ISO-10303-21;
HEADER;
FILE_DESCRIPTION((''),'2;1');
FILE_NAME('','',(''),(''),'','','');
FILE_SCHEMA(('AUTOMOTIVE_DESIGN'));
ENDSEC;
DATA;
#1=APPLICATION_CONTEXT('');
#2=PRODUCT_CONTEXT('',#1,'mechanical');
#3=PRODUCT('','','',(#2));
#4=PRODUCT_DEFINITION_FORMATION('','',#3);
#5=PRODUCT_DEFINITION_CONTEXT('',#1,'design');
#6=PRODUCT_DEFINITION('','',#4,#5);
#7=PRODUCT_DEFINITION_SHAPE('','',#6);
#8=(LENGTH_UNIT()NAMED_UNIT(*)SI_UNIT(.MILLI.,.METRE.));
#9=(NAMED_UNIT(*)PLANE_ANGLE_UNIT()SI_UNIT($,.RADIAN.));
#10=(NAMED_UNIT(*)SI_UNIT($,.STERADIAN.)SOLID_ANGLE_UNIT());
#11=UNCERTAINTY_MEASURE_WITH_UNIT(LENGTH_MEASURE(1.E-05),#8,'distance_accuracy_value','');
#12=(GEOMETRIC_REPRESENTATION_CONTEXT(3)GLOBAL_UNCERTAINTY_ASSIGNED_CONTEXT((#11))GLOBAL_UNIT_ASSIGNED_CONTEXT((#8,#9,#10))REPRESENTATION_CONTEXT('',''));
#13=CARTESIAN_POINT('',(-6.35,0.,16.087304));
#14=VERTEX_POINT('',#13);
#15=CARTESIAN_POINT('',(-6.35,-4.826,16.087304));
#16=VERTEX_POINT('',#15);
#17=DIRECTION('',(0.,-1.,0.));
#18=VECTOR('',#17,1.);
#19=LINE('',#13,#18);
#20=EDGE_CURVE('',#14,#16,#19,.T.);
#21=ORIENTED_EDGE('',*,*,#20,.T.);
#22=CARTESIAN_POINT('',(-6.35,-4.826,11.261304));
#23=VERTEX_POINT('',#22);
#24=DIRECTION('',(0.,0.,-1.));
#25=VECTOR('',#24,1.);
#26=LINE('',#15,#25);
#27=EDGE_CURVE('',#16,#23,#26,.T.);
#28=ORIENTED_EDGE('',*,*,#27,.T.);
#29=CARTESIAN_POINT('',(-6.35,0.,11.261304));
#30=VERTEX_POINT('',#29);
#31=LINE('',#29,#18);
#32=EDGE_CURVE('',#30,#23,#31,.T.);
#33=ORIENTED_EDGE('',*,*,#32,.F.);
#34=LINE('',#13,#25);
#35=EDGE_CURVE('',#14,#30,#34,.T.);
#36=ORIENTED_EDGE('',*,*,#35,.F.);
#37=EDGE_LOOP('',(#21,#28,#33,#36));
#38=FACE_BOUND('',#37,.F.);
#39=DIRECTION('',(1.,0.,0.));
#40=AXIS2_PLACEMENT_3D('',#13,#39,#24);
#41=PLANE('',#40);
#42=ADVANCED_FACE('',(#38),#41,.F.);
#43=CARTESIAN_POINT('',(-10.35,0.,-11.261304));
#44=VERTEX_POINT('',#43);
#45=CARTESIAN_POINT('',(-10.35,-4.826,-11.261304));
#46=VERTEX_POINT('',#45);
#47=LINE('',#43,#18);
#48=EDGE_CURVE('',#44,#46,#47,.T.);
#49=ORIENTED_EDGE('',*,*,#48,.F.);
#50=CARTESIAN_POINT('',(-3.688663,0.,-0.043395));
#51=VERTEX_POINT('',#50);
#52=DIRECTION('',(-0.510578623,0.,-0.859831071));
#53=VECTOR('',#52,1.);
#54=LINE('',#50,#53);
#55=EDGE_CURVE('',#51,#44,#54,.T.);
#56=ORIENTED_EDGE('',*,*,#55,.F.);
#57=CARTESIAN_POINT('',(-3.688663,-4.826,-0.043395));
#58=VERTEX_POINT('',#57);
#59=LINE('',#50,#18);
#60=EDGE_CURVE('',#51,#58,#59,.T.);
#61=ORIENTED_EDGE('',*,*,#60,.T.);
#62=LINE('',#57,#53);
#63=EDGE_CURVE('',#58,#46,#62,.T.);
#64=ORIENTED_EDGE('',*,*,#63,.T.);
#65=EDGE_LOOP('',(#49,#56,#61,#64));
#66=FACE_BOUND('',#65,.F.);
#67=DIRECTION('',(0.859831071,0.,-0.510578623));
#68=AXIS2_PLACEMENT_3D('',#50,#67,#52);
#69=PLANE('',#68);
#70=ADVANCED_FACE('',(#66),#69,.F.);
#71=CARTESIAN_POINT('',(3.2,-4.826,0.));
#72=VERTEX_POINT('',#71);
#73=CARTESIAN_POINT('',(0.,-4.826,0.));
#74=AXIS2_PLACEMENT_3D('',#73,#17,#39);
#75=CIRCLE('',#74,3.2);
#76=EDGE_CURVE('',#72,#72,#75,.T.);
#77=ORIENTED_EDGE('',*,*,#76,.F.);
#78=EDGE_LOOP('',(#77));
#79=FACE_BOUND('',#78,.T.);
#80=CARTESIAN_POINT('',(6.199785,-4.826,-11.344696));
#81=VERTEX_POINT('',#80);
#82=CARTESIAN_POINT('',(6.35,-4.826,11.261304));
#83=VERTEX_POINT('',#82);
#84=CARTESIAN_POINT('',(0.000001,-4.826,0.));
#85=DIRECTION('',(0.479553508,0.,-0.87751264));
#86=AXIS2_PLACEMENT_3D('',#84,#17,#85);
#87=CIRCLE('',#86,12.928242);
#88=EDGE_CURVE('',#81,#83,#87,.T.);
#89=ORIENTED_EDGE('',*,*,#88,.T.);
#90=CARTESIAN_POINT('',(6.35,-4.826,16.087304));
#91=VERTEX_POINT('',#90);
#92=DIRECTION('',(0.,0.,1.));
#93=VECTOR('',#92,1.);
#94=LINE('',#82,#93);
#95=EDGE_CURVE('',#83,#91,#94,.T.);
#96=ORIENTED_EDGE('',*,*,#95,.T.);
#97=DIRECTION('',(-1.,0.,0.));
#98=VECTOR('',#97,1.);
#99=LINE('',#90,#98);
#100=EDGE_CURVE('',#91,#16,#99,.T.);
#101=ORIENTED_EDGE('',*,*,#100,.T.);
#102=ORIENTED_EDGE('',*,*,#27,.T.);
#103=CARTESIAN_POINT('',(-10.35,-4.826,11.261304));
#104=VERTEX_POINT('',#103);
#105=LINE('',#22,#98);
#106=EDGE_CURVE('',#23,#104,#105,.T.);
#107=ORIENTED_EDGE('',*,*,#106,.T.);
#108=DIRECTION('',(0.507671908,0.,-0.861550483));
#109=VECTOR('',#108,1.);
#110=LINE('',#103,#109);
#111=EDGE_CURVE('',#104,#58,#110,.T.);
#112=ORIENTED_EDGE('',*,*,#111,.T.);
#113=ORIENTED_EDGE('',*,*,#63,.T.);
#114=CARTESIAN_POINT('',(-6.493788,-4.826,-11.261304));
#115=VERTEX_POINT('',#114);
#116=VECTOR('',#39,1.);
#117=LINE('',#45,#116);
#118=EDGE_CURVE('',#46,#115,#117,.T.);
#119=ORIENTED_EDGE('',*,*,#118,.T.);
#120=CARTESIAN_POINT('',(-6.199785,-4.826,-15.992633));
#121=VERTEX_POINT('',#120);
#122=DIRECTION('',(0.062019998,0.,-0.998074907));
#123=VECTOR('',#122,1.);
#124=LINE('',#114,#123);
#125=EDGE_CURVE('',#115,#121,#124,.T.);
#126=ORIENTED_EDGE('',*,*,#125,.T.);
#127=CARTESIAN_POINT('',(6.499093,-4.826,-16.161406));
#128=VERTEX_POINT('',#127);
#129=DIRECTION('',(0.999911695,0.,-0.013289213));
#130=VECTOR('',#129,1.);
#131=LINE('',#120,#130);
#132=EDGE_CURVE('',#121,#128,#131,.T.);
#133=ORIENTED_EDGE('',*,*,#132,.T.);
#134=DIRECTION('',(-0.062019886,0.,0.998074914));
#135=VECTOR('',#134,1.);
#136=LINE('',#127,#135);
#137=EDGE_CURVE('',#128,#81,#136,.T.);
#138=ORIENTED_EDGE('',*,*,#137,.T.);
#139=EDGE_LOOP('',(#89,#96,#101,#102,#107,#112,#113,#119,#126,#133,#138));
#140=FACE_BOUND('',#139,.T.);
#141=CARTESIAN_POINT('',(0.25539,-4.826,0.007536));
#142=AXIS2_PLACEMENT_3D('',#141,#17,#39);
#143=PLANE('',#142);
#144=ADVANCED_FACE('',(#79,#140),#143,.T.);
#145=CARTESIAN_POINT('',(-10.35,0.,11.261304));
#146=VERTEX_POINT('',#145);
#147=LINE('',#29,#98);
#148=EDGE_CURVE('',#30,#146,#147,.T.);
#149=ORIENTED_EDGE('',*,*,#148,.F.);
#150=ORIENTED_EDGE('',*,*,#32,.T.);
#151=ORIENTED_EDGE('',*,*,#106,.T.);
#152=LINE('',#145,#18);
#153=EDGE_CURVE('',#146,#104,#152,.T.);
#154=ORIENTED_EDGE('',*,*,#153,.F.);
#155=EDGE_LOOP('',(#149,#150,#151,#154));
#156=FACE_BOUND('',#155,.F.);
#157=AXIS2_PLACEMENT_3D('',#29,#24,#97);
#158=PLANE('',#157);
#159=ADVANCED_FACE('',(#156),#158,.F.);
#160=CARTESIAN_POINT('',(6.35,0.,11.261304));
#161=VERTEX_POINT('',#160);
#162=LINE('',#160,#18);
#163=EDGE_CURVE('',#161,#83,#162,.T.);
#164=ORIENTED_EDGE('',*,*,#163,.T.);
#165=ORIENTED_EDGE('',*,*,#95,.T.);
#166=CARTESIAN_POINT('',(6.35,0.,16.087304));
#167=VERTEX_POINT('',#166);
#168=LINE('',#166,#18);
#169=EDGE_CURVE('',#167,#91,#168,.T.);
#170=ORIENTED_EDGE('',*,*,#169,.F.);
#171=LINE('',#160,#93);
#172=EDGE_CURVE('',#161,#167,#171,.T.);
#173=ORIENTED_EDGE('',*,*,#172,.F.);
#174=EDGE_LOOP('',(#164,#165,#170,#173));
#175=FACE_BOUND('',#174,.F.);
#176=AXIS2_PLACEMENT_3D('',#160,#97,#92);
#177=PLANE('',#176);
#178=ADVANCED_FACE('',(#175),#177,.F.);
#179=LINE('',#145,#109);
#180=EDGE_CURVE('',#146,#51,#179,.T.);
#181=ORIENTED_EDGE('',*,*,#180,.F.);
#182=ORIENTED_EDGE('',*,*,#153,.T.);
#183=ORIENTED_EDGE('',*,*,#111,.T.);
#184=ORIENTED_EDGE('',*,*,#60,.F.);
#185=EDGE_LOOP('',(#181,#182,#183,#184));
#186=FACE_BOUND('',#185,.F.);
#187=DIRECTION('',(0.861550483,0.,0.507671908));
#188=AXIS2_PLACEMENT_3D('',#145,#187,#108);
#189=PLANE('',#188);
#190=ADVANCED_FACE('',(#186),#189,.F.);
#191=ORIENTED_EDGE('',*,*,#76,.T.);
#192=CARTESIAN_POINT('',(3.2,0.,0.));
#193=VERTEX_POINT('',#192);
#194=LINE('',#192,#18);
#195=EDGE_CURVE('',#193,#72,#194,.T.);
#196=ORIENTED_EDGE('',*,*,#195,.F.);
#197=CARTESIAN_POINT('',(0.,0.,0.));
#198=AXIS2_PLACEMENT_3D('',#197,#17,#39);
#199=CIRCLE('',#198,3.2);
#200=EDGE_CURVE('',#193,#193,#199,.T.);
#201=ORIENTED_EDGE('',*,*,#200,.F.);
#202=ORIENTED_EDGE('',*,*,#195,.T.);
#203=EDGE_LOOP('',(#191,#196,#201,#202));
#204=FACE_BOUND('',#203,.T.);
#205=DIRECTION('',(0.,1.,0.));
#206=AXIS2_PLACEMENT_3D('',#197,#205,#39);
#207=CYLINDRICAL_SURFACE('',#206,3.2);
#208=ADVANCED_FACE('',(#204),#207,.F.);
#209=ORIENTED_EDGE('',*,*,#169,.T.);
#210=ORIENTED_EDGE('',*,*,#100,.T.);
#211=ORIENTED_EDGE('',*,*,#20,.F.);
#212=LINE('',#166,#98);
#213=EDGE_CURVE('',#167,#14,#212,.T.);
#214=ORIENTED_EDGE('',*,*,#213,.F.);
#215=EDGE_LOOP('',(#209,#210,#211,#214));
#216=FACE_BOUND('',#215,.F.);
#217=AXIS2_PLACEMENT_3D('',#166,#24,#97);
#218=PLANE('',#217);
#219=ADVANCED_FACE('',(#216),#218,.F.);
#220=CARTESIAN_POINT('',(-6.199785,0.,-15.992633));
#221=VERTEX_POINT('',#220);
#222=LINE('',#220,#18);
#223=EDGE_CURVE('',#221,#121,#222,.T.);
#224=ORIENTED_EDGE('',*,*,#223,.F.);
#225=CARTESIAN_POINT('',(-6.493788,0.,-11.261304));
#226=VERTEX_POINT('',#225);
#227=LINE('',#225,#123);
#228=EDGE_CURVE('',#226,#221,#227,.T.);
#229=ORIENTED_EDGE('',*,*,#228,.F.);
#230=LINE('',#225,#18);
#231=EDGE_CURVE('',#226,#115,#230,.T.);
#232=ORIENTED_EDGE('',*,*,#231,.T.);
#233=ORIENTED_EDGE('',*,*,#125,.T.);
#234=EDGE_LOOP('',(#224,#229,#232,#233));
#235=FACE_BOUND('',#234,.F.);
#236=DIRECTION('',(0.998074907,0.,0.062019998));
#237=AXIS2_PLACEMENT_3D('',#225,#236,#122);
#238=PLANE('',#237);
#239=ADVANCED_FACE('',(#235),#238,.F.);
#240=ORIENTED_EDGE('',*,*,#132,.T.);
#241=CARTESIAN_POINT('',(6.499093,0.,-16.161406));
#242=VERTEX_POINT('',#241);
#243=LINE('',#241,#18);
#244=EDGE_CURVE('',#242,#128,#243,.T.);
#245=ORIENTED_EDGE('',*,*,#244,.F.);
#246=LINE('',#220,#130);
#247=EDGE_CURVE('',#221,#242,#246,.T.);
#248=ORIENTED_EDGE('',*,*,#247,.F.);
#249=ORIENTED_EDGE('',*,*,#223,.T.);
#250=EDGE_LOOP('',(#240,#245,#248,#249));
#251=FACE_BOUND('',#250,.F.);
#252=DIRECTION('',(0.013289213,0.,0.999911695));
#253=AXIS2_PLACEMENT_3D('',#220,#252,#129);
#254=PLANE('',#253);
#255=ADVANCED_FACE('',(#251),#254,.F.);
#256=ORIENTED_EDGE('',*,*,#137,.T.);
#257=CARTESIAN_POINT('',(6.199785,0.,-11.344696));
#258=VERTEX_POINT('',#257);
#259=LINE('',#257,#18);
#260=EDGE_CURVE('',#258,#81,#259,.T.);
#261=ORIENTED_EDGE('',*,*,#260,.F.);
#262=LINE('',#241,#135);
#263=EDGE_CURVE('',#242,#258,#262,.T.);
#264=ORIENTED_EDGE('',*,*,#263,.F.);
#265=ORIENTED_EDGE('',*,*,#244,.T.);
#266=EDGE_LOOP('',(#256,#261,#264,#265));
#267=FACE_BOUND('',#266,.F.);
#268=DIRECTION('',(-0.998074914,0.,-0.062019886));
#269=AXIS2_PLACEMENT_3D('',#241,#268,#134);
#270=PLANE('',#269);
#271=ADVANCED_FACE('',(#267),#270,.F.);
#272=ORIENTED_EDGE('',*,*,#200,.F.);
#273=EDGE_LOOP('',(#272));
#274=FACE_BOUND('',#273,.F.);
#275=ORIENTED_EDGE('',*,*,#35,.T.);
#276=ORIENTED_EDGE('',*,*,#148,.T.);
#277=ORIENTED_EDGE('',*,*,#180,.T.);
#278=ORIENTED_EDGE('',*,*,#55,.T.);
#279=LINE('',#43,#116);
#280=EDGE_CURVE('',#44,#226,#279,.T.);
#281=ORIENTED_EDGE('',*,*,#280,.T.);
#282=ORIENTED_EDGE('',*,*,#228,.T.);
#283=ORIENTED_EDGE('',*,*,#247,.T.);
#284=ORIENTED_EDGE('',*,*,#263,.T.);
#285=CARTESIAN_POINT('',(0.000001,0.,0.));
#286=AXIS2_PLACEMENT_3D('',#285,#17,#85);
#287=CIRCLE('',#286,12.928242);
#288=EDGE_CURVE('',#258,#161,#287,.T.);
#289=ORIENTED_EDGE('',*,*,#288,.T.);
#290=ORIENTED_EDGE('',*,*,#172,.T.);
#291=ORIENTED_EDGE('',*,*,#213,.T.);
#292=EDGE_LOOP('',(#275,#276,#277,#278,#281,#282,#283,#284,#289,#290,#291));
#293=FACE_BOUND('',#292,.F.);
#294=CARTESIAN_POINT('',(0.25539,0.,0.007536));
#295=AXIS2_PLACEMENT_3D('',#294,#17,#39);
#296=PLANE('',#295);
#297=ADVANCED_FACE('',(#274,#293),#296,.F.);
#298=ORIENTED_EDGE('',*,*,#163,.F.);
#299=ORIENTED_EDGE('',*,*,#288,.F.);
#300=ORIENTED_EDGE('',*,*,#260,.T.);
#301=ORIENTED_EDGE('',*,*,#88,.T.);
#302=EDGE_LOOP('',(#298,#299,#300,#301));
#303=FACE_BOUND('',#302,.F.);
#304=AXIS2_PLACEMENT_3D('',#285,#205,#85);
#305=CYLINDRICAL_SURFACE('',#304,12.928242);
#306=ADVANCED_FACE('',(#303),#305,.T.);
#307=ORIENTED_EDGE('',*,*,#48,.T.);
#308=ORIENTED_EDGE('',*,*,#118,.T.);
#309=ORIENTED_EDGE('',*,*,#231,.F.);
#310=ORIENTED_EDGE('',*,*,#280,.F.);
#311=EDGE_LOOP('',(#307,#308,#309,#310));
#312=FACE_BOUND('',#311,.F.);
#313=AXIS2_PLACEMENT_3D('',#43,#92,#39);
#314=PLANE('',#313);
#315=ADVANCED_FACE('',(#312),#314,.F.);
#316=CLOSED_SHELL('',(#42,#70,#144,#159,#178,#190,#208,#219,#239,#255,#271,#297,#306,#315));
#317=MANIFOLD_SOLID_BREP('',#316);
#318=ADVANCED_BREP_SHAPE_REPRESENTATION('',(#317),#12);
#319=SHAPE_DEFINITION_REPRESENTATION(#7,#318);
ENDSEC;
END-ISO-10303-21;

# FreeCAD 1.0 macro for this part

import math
import FreeCAD as App
import Part
import Sketcher
Q = App.Units.Quantity

doc = App.newDocument("Part")
params = doc.addObject("Spreadsheet::Sheet", "Params")
for row, (alias, value) in enumerate([
    ("sketch1_width", "0.5 in"),
    ("sketch1_length", "0.5 in"),
    ("sketch1_height", "0.19 in"),
    ("sketch1_height2", "0.19 in"),
    ("sketch1_length2", "0.19 in"),
    ("pad1_length", "0.19 in"),
], start=1):
    params.set(f"A{row}", alias)
    params.set(f"B{row}", "=" + value)
    params.setAlias(f"B{row}", alias)

body = doc.addObject("PartDesign::Body", "Body")

# Sketch on XZ plane
sketch1 = doc.addObject("Sketcher::SketchObject", "Sketch")
body.addObject(sketch1)
sketch1.AttachmentSupport = (doc.XZ_Plane, [""])
sketch1.MapMode = "FlatFace"
sketch1.addGeometry(Part.LineSegment(App.Vector(-6.199785, -15.992633, 0), App.Vector(6.499093, -16.161406, 0)), False)
sketch1.addGeometry(Part.LineSegment(App.Vector(6.499093, -16.161406, 0), App.Vector(6.199785, -11.344696, 0)), False)
sketch1.addGeometry(Part.ArcOfCircle(Part.Circle(App.Vector(0.000001, 0, 0), App.Vector(0, 0, 1), 12.928242), math.radians(-61.343755), math.radians(60.582315)), False)
sketch1.addGeometry(Part.LineSegment(App.Vector(6.35, 11.261304, 0), App.Vector(6.35, 16.087304, 0)), False)
sketch1.addGeometry(Part.LineSegment(App.Vector(6.35, 16.087304, 0), App.Vector(-6.35, 16.087304, 0)), False)
sketch1.addGeometry(Part.LineSegment(App.Vector(-6.35, 16.087304, 0), App.Vector(-6.35, 11.261304, 0)), False)
sketch1.addGeometry(Part.LineSegment(App.Vector(-6.35, 11.261304, 0), App.Vector(-10.35, 11.261304, 0)), False)
sketch1.addGeometry(Part.LineSegment(App.Vector(-10.35, 11.261304, 0), App.Vector(-3.688663, -0.043395, 0)), False)
sketch1.addGeometry(Part.LineSegment(App.Vector(-3.688663, -0.043395, 0), App.Vector(-10.35, -11.261304, 0)), False)
sketch1.addGeometry(Part.LineSegment(App.Vector(-10.35, -11.261304, 0), App.Vector(-6.493788, -11.261304, 0)), False)
sketch1.addGeometry(Part.LineSegment(App.Vector(-6.493788, -11.261304, 0), App.Vector(-6.199785, -15.992633, 0)), False)
sketch1.addGeometry(Part.Circle(App.Vector(0, 0, 0), App.Vector(0, 0, 1), 3.2), False)
sketch1.addConstraint(Sketcher.Constraint("Coincident", 0, 2, 1, 1))
sketch1.addConstraint(Sketcher.Constraint("Coincident", 1, 2, 2, 1))
sketch1.addConstraint(Sketcher.Constraint("Coincident", 2, 2, 3, 1))
sketch1.addConstraint(Sketcher.Constraint("Coincident", 3, 2, 4, 1))
sketch1.addConstraint(Sketcher.Constraint("Coincident", 4, 2, 5, 1))
sketch1.addConstraint(Sketcher.Constraint("Coincident", 5, 2, 6, 1))
sketch1.addConstraint(Sketcher.Constraint("Coincident", 6, 2, 7, 1))
sketch1.addConstraint(Sketcher.Constraint("Coincident", 7, 2, 8, 1))
sketch1.addConstraint(Sketcher.Constraint("Coincident", 8, 2, 9, 1))
sketch1.addConstraint(Sketcher.Constraint("Coincident", 9, 2, 10, 1))
sketch1.addConstraint(Sketcher.Constraint("Coincident", 10, 2, 0, 1))
sketch1.addConstraint(Sketcher.Constraint("Vertical", 3))
sketch1.addConstraint(Sketcher.Constraint("Horizontal", 4))
sketch1.addConstraint(Sketcher.Constraint("Vertical", 5))
sketch1.addConstraint(Sketcher.Constraint("Horizontal", 6))
sketch1.addConstraint(Sketcher.Constraint("Horizontal", 9))
sketch1.addConstraint(Sketcher.Constraint("Coincident", 2, 3, -1, 1))
sketch1.addConstraint(Sketcher.Constraint("Coincident", 11, 3, -1, 1))
sketch1.addConstraint(Sketcher.Constraint("DistanceX", 4, 2, 4, 1, Q("0.5 in")))
sketch1.addConstraint(Sketcher.Constraint("Distance", 0, Q("0.5 in")))
sketch1.addConstraint(Sketcher.Constraint("DistanceY", 3, 1, 3, 2, Q("0.19 in")))
sketch1.addConstraint(Sketcher.Constraint("DistanceY", 5, 2, 5, 1, Q("0.19 in")))
sketch1.addConstraint(Sketcher.Constraint("Distance", 1, Q("0.19 in")))
sketch1.addConstraint(Sketcher.Constraint("Diameter", 11, 6.4))
sketch1.addConstraint(Sketcher.Constraint("DistanceX", -1, 1, 2, 2, Q("0.25 in")))
sketch1.addConstraint(Sketcher.Constraint("DistanceY", 1, 2, 2, 2, Q("0.89 in")))
sketch1.addConstraint(Sketcher.Constraint("DistanceX", 6, 2, 6, 1, 4.0))
sketch1.addConstraint(Sketcher.Constraint("Radius", 2, 12.928242))
sketch1.addConstraint(Sketcher.Constraint("DistanceX", 9, 1, 9, 2, 3.856212))
sketch1.addConstraint(Sketcher.Constraint("DistanceX", 8, 2, -1, 1, 10.35))
sketch1.addConstraint(Sketcher.Constraint("DistanceY", 7, 2, 5, 2, 11.304699))
sketch1.addConstraint(Sketcher.Constraint("DistanceY", 0, 2, 8, 2, 4.900102))
sketch1.addConstraint(Sketcher.Constraint("DistanceY", 0, 2, 1, 2, 4.81671))
sketch1.addConstraint(Sketcher.Constraint("DistanceY", 10, 2, 9, 2, 4.731329))
sketch1.addConstraint(Sketcher.Constraint("Distance", 7, 13.121343))
sketch1.setExpression("Constraints[18]", "Params.sketch1_width")
sketch1.setExpression("Constraints[19]", "Params.sketch1_length")
sketch1.setExpression("Constraints[20]", "Params.sketch1_height")
sketch1.setExpression("Constraints[21]", "Params.sketch1_height2")
sketch1.setExpression("Constraints[22]", "Params.sketch1_length2")
pad1 = doc.addObject("PartDesign::Pad", "Pad")
body.addObject(pad1)
pad1.Profile = sketch1
pad1.setExpression("Length", "Params.pad1_length")

doc.recompute()
